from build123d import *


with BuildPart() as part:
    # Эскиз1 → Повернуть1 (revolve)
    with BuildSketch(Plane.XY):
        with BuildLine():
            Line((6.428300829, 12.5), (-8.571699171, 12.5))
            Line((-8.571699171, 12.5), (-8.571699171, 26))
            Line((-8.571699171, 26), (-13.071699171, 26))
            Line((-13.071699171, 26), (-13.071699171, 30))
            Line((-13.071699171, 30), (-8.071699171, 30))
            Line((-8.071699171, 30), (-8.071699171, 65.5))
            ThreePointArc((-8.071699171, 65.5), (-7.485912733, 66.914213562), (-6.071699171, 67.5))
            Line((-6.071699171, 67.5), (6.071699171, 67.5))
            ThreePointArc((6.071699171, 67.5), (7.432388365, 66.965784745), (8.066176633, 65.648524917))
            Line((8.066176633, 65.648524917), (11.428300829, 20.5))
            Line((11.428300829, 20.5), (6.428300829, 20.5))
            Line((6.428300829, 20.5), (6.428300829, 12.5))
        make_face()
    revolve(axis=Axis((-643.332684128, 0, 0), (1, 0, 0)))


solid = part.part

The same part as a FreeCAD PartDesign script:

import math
import FreeCAD as App
import Part
import Sketcher

V = App.Vector
Q = App.Units.Quantity

doc = App.newDocument("Part")
body = doc.addObject("PartDesign::Body", "Body")

# Sketch on XY plane
sketch1 = body.newObject("Sketcher::SketchObject", "Sketch")
sketch1.AttachmentSupport = (doc.getObject("XY_Plane"), [""])
sketch1.MapMode = "FlatFace"
sketch1.addGeometry([
    Part.LineSegment(V(-8.6, 12.5, 0), V(6.4, 12.5, 0)),  # 0
    Part.LineSegment(V(6.4, 12.5, 0), V(6.4, 20.5, 0)),  # 1
    Part.LineSegment(V(6.4, 20.5, 0), V(11.4, 20.5, 0)),  # 2
    Part.LineSegment(V(11.4, 20.5, 0), V(8.1, 65.6, 0)),  # 3
    Part.ArcOfCircle(Part.Circle(V(6.1, 65.5, 0), V(0, 0, 1), 2), math.radians(4), math.radians(90)),  # 4
    Part.LineSegment(V(6.1, 67.5, 0), V(-6.1, 67.5, 0)),  # 5
    Part.ArcOfCircle(Part.Circle(V(-6.1, 65.5, 0), V(0, 0, 1), 2), math.radians(90), math.radians(180)),  # 6
    Part.LineSegment(V(-8.1, 65.5, 0), V(-8.1, 30, 0)),  # 7
    Part.LineSegment(V(-8.1, 30, 0), V(-13.1, 30, 0)),  # 8
    Part.LineSegment(V(-13.1, 30, 0), V(-13.1, 26, 0)),  # 9
    Part.LineSegment(V(-13.1, 26, 0), V(-8.6, 26, 0)),  # 10
    Part.LineSegment(V(-8.6, 26, 0), V(-8.6, 12.5, 0)),  # 11
], False)
sketch1.addConstraint([
    Sketcher.Constraint("Coincident", 0, 2, 1, 1),
    Sketcher.Constraint("Coincident", 1, 2, 2, 1),
    Sketcher.Constraint("Coincident", 2, 2, 3, 1),
    Sketcher.Constraint("Tangent", 3, 2, 4, 1),
    Sketcher.Constraint("Tangent", 4, 2, 5, 1),
    Sketcher.Constraint("Tangent", 5, 2, 6, 1),
    Sketcher.Constraint("Tangent", 6, 2, 7, 1),
    Sketcher.Constraint("Coincident", 7, 2, 8, 1),
    Sketcher.Constraint("Coincident", 8, 2, 9, 1),
    Sketcher.Constraint("Coincident", 9, 2, 10, 1),
    Sketcher.Constraint("Coincident", 10, 2, 11, 1),
    Sketcher.Constraint("Coincident", 11, 2, 0, 1),
    Sketcher.Constraint("Horizontal", 0),
    Sketcher.Constraint("Vertical", 1),
    Sketcher.Constraint("Horizontal", 2),
    Sketcher.Constraint("Horizontal", 5),
    Sketcher.Constraint("Vertical", 7),
    Sketcher.Constraint("Horizontal", 8),
    Sketcher.Constraint("Vertical", 9),
    Sketcher.Constraint("Horizontal", 10),
    Sketcher.Constraint("Vertical", 11),
    Sketcher.Constraint("Equal", 4, 6),
    Sketcher.Constraint("Equal", 2, 8),
    Sketcher.Constraint("Radius", 4, Q("2 mm")),
    Sketcher.Constraint("DistanceX", 0, 1, 0, 2, Q("15 mm")),
    Sketcher.Constraint("DistanceX", 2, 1, 2, 2, Q("5 mm")),
    Sketcher.Constraint("DistanceY", 1, 1, 1, 2, Q("8 mm")),
    Sketcher.Constraint("DistanceY", 9, 2, 9, 1, Q("4 mm")),
    Sketcher.Constraint("DistanceX", 10, 1, 10, 2, Q("4.5 mm")),
    Sketcher.Constraint("DistanceY", 7, 2, 7, 1, Q("35.5 mm")),
    Sketcher.Constraint("DistanceY", 11, 2, 11, 1, Q("13.5 mm")),
    Sketcher.Constraint("DistanceY", -1, 1, 7, 2, Q("30 mm")),
    Sketcher.Constraint("DistanceX", 5, 2, 5, 1, Q("12.143398 mm")),
    Sketcher.Constraint("DistanceX", -1, 1, 4, 3, Q("6.071699 mm")),
])
revolution = body.newObject("PartDesign::Revolution", "Revolution")
revolution.Profile = sketch1
revolution.ReferenceAxis = (sketch1, ["H_Axis"])
revolution.Angle = 360

doc.recompute()
